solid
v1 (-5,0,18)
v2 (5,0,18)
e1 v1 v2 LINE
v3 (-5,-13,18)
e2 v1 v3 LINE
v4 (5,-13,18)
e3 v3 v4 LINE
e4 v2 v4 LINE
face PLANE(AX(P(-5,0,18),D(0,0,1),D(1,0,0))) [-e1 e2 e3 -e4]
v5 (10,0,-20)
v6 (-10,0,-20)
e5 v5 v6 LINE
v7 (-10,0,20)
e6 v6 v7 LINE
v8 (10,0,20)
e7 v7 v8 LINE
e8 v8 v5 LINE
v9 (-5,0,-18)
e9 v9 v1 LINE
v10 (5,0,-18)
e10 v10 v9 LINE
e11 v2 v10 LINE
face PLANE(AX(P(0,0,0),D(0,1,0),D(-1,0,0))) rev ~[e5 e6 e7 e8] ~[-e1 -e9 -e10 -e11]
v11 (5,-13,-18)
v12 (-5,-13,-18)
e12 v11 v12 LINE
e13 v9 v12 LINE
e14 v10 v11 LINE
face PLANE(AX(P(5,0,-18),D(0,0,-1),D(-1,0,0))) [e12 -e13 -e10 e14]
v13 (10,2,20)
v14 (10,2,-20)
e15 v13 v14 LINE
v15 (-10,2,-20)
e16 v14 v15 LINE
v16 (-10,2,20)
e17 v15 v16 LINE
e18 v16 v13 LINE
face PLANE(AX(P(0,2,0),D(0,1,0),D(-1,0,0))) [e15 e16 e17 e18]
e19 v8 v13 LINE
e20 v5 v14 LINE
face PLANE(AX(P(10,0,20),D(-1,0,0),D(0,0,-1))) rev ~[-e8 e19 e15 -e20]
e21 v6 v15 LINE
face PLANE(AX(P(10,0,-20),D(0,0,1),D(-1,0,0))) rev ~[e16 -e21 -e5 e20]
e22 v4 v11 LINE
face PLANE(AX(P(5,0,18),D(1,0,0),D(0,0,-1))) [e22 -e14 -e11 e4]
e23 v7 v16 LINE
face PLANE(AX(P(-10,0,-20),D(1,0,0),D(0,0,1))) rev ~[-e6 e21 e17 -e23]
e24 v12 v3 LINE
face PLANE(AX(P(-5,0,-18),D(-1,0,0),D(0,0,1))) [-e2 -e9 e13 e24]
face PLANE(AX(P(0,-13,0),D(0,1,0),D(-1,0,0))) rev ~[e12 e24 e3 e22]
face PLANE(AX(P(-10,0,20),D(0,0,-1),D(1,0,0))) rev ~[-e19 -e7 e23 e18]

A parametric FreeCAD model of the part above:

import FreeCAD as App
import Part
import Sketcher
from FreeCAD import Vector

doc = App.newDocument("Part")
body = doc.addObject("PartDesign::Body", "Body")

# Sketch on XZ plane
sketch1 = body.newObject("Sketcher::SketchObject", "Sketch")
sketch1.AttachmentSupport = (doc.getObject("XZ_Plane"), [""])
sketch1.MapMode = "FlatFace"
sketch1.addGeometry(Part.LineSegment(Vector(-10, -20, 0), Vector(-10, 20, 0)), False)
sketch1.addGeometry(Part.LineSegment(Vector(-10, 20, 0), Vector(10, 20, 0)), False)
sketch1.addGeometry(Part.LineSegment(Vector(10, 20, 0), Vector(10, -20, 0)), False)
sketch1.addGeometry(Part.LineSegment(Vector(10, -20, 0), Vector(-10, -20, 0)), False)
sketch1.addConstraint(Sketcher.Constraint("Coincident", 0, 2, 1, 1))
sketch1.addConstraint(Sketcher.Constraint("Coincident", 1, 2, 2, 1))
sketch1.addConstraint(Sketcher.Constraint("Coincident", 2, 2, 3, 1))
sketch1.addConstraint(Sketcher.Constraint("Coincident", 3, 2, 0, 1))
sketch1.addConstraint(Sketcher.Constraint("Vertical", 0))
sketch1.addConstraint(Sketcher.Constraint("Horizontal", 1))
sketch1.addConstraint(Sketcher.Constraint("Vertical", 2))
sketch1.addConstraint(Sketcher.Constraint("Horizontal", 3))
sketch1.addConstraint(Sketcher.Constraint("Symmetric", 0, 2, 2, 2, -1, 1))
sketch1.addConstraint(Sketcher.Constraint("DistanceX", 1, 1, 1, 2, 20.0))
sketch1.addConstraint(Sketcher.Constraint("DistanceY", 0, 1, 0, 2, 40.0))
pad1 = body.newObject("PartDesign::Pad", "Pad")
pad1.Profile = sketch1
pad1.Length = 2
pad1.Reversed = True

# Sketch on XZ plane
sketch2 = body.newObject("Sketcher::SketchObject", "Sketch001")
sketch2.AttachmentSupport = (doc.getObject("XZ_Plane"), [""])
sketch2.MapMode = "FlatFace"
sketch2.addGeometry(Part.LineSegment(Vector(-5, -18, 0), Vector(-5, 18, 0)), False)
sketch2.addGeometry(Part.LineSegment(Vector(-5, 18, 0), Vector(5, 18, 0)), False)
sketch2.addGeometry(Part.LineSegment(Vector(5, 18, 0), Vector(5, -18, 0)), False)
sketch2.addGeometry(Part.LineSegment(Vector(5, -18, 0), Vector(-5, -18, 0)), False)
sketch2.addConstraint(Sketcher.Constraint("Coincident", 0, 2, 1, 1))
sketch2.addConstraint(Sketcher.Constraint("Coincident", 1, 2, 2, 1))
sketch2.addConstraint(Sketcher.Constraint("Coincident", 2, 2, 3, 1))
sketch2.addConstraint(Sketcher.Constraint("Coincident", 3, 2, 0, 1))
sketch2.addConstraint(Sketcher.Constraint("Vertical", 0))
sketch2.addConstraint(Sketcher.Constraint("Horizontal", 1))
sketch2.addConstraint(Sketcher.Constraint("Vertical", 2))
sketch2.addConstraint(Sketcher.Constraint("Horizontal", 3))
sketch2.addConstraint(Sketcher.Constraint("Symmetric", 0, 2, 2, 2, -1, 1))
sketch2.addConstraint(Sketcher.Constraint("DistanceX", 1, 1, 1, 2, 10.0))
sketch2.addConstraint(Sketcher.Constraint("DistanceY", 0, 1, 0, 2, 36.0))
pad2 = body.newObject("PartDesign::Pad", "Pad001")
pad2.Profile = sketch2
pad2.Length = 13

doc.recompute()
